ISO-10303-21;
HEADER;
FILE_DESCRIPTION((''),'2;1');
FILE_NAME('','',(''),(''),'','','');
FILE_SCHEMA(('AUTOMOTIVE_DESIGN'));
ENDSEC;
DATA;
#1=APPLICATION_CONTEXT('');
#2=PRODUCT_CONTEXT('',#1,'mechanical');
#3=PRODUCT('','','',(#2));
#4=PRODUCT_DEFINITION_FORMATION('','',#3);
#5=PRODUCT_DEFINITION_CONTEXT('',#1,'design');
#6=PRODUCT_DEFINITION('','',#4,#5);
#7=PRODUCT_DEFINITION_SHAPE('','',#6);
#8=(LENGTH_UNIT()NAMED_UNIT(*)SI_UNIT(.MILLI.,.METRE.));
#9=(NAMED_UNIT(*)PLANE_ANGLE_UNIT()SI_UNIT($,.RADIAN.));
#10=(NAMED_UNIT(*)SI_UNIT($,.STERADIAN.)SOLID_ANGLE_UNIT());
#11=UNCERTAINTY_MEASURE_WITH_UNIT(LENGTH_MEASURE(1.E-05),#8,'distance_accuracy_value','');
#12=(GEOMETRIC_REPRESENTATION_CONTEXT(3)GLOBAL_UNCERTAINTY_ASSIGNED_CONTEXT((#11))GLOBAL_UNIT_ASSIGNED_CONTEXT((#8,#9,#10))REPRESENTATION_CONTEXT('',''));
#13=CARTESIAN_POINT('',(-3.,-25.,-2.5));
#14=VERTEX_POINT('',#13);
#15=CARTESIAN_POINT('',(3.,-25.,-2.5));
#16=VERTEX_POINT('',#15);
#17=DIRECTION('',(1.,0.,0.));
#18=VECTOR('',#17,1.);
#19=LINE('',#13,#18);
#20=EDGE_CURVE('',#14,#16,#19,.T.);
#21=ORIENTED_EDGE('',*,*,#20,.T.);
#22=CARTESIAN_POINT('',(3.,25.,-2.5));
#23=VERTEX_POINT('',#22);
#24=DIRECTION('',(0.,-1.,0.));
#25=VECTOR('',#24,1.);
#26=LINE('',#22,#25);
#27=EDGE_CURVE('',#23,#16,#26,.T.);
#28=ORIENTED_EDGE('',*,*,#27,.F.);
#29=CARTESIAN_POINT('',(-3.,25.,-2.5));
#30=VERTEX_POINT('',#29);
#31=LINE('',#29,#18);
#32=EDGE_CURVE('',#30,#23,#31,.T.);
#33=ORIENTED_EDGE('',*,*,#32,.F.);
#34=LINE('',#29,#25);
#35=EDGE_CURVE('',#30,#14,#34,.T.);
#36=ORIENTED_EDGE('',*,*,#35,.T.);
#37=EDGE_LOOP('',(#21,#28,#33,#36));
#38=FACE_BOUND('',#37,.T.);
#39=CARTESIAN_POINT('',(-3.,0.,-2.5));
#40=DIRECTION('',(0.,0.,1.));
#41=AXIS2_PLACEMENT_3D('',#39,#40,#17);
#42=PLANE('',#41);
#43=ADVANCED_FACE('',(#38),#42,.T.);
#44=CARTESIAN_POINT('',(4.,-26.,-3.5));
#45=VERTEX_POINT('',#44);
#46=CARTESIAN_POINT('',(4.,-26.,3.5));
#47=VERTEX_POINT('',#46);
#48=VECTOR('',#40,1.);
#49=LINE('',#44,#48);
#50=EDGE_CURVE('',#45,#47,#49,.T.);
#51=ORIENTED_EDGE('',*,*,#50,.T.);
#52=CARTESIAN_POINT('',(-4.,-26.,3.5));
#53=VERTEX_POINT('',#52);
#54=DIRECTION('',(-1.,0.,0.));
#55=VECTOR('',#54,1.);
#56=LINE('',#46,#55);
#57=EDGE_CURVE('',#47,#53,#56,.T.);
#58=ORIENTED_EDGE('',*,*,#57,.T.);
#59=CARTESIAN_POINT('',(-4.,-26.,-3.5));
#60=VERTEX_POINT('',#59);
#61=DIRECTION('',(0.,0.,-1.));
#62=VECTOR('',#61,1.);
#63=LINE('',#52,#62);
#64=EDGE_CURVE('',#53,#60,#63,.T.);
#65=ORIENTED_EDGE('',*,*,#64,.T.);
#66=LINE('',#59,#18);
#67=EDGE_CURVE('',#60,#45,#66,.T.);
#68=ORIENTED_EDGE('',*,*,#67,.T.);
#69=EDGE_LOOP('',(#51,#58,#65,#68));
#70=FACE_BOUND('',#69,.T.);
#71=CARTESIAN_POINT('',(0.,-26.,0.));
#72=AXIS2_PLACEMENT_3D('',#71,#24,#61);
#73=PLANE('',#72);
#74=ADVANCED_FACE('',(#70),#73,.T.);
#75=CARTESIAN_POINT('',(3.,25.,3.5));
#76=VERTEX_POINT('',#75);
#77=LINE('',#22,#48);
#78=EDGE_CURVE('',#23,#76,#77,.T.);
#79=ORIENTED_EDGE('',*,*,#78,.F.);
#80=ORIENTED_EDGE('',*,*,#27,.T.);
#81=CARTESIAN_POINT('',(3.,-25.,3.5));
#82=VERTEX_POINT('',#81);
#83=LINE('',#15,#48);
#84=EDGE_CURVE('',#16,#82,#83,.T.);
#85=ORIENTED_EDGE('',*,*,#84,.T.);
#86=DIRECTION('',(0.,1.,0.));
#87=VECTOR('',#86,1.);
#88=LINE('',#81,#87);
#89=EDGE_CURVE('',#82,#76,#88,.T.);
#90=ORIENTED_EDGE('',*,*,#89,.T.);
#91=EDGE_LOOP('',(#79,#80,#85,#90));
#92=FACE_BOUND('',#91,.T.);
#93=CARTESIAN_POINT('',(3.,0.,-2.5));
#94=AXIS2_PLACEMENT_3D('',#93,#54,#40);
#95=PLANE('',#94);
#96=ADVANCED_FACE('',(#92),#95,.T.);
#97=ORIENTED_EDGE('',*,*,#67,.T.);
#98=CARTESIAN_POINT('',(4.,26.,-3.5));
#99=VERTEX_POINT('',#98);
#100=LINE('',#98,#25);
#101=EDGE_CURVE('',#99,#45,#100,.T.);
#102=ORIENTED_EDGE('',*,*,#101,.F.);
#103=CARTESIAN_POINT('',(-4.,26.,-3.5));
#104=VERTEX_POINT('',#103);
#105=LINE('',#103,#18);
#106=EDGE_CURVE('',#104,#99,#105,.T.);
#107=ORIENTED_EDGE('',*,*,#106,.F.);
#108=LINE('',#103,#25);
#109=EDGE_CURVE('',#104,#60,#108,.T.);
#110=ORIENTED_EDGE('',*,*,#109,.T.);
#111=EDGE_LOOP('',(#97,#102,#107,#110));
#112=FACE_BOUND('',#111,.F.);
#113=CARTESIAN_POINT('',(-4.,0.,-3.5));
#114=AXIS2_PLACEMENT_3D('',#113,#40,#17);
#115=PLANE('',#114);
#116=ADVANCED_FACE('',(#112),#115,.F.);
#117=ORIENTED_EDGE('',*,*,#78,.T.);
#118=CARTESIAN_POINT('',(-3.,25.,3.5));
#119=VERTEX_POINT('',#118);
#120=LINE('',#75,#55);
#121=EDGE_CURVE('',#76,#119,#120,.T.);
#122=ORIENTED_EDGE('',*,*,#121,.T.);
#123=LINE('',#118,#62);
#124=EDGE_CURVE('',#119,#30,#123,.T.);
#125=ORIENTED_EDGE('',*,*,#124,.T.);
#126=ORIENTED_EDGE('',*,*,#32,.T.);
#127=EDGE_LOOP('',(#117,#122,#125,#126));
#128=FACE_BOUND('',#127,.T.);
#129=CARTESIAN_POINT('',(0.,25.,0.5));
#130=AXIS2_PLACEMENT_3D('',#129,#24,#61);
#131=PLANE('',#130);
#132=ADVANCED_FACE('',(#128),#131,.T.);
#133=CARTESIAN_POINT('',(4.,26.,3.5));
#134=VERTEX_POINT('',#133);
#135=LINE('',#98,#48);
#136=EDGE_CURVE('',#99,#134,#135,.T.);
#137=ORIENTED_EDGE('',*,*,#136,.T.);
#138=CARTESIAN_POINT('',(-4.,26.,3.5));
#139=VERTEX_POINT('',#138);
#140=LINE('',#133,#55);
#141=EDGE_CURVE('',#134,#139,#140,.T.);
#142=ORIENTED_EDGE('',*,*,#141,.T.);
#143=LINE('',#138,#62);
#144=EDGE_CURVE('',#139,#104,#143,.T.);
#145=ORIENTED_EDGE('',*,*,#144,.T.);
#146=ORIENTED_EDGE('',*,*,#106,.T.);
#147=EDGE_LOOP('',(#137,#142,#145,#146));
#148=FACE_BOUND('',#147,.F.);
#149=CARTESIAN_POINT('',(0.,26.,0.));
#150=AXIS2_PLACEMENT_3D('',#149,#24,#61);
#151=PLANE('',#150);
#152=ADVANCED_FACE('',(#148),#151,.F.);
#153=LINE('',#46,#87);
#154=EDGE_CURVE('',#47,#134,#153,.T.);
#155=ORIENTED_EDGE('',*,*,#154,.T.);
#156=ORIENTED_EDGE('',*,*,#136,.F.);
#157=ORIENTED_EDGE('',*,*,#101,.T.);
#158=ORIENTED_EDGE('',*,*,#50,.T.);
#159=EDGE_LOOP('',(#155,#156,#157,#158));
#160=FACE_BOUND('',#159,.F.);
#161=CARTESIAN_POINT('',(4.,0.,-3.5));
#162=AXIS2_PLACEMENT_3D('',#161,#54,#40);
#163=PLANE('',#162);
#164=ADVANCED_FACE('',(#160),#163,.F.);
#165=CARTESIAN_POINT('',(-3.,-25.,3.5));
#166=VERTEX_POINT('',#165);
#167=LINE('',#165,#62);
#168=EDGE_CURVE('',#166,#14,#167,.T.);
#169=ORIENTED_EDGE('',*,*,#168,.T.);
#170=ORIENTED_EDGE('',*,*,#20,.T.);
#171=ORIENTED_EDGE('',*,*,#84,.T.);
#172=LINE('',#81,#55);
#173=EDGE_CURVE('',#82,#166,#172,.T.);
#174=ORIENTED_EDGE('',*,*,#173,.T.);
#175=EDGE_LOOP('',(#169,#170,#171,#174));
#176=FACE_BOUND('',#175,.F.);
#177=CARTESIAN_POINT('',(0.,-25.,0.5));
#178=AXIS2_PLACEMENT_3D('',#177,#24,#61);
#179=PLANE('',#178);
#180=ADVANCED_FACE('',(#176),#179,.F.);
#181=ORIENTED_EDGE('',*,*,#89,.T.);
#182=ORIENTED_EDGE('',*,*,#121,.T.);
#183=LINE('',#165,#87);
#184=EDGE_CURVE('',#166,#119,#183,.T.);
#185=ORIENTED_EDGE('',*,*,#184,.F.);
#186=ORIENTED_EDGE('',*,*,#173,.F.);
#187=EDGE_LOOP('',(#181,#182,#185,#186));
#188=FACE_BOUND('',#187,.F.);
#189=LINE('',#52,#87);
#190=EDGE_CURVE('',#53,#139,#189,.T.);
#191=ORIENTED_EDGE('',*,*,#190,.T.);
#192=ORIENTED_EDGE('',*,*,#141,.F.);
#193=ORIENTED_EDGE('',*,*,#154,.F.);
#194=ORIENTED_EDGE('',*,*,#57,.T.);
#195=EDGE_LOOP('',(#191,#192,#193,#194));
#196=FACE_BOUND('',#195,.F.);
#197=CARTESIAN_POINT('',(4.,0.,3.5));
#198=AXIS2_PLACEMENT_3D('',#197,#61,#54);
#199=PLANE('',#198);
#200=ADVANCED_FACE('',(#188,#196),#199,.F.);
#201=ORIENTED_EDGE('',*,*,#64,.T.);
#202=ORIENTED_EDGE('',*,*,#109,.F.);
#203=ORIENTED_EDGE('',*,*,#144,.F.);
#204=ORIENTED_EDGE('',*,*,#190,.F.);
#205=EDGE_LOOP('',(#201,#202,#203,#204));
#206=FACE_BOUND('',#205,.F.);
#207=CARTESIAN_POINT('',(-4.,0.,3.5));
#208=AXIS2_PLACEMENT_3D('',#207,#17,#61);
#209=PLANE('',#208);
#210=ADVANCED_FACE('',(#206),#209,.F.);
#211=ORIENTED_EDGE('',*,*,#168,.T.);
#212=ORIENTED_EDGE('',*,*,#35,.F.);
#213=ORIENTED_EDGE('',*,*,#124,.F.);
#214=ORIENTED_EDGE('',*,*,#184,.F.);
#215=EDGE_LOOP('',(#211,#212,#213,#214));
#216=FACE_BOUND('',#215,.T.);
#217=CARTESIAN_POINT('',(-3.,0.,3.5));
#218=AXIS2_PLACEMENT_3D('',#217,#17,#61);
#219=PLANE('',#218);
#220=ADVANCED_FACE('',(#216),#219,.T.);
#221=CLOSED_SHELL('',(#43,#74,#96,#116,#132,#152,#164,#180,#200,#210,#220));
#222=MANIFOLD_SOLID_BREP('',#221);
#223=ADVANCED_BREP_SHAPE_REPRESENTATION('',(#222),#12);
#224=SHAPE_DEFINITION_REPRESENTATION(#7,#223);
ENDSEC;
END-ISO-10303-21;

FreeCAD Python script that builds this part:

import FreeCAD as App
import Part
import Sketcher
from FreeCAD import Vector
Q = App.Units.Quantity

doc = App.newDocument("Part")
body = doc.addObject("PartDesign::Body", "Body")

sketch1 = body.newObject("Sketcher::SketchObject", "Sketch")
sketch1.AttachmentSupport = (doc.getObject("XZ_Plane"), [""])
sketch1.MapMode = "FlatFace"
sketch1.addGeometry([
    Part.LineSegment(Vector(4, 4, 0), Vector(-4, 4, 0)),
    Part.LineSegment(Vector(-4, 4, 0), Vector(-4, -4, 0)),
    Part.LineSegment(Vector(-4, -4, 0), Vector(4, -4, 0)),
    Part.LineSegment(Vector(4, -4, 0), Vector(4, 4, 0)),
], False)
sketch1.addConstraint([
    Sketcher.Constraint("Coincident", 0, 2, 1, 1),
    Sketcher.Constraint("Coincident", 1, 2, 2, 1),
    Sketcher.Constraint("Coincident", 2, 2, 3, 1),
    Sketcher.Constraint("Coincident", 3, 2, 0, 1),
    Sketcher.Constraint("Horizontal", 0),
    Sketcher.Constraint("Vertical", 1),
    Sketcher.Constraint("Horizontal", 2),
    Sketcher.Constraint("Vertical", 3),
    Sketcher.Constraint("Symmetric", 0, 2, 2, 2, -1, 1),
    Sketcher.Constraint("DistanceX", 0, 2, 0, 1, Q("8 mm")),
    Sketcher.Constraint("DistanceY", 1, 2, 1, 1, Q("7 mm")),
])
pad1 = body.newObject("PartDesign::Pad", "Pad")
pad1.Profile = sketch1
pad1.Length = 52
pad1.Midplane = True

sketch2 = body.newObject("Sketcher::SketchObject", "Sketch001")
sketch2.AttachmentSupport = (doc.getObject("XZ_Plane"), [""])
sketch2.MapMode = "FlatFace"
sketch2.addGeometry([
    Part.LineSegment(Vector(3, 4, 0), Vector(-3, 4, 0)),
    Part.LineSegment(Vector(-3, 4, 0), Vector(-3, -2, 0)),
    Part.LineSegment(Vector(-3, -2, 0), Vector(3, -2, 0)),
    Part.LineSegment(Vector(3, -2, 0), Vector(3, 4, 0)),
], False)
sketch2.addConstraint([
    Sketcher.Constraint("Coincident", 0, 2, 1, 1),
    Sketcher.Constraint("Coincident", 1, 2, 2, 1),
    Sketcher.Constraint("Coincident", 2, 2, 3, 1),
    Sketcher.Constraint("Coincident", 3, 2, 0, 1),
    Sketcher.Constraint("Horizontal", 0),
    Sketcher.Constraint("Vertical", 1),
    Sketcher.Constraint("Horizontal", 2),
    Sketcher.Constraint("Vertical", 3),
    Sketcher.Constraint("Equal", 2, 1),
    Sketcher.Constraint("DistanceX", 0, 2, 0, 1, Q("6 mm")),
    Sketcher.Constraint("DistanceX", 0, 2, -1, 1, Q("3 mm")),
    Sketcher.Constraint("DistanceY", -1, 1, 0, 2, Q("3.5 mm")),
])
pocket1 = body.newObject("PartDesign::Pocket", "Pocket")
pocket1.Profile = sketch2
pocket1.Length = 50
pocket1.Midplane = True

doc.recompute()
